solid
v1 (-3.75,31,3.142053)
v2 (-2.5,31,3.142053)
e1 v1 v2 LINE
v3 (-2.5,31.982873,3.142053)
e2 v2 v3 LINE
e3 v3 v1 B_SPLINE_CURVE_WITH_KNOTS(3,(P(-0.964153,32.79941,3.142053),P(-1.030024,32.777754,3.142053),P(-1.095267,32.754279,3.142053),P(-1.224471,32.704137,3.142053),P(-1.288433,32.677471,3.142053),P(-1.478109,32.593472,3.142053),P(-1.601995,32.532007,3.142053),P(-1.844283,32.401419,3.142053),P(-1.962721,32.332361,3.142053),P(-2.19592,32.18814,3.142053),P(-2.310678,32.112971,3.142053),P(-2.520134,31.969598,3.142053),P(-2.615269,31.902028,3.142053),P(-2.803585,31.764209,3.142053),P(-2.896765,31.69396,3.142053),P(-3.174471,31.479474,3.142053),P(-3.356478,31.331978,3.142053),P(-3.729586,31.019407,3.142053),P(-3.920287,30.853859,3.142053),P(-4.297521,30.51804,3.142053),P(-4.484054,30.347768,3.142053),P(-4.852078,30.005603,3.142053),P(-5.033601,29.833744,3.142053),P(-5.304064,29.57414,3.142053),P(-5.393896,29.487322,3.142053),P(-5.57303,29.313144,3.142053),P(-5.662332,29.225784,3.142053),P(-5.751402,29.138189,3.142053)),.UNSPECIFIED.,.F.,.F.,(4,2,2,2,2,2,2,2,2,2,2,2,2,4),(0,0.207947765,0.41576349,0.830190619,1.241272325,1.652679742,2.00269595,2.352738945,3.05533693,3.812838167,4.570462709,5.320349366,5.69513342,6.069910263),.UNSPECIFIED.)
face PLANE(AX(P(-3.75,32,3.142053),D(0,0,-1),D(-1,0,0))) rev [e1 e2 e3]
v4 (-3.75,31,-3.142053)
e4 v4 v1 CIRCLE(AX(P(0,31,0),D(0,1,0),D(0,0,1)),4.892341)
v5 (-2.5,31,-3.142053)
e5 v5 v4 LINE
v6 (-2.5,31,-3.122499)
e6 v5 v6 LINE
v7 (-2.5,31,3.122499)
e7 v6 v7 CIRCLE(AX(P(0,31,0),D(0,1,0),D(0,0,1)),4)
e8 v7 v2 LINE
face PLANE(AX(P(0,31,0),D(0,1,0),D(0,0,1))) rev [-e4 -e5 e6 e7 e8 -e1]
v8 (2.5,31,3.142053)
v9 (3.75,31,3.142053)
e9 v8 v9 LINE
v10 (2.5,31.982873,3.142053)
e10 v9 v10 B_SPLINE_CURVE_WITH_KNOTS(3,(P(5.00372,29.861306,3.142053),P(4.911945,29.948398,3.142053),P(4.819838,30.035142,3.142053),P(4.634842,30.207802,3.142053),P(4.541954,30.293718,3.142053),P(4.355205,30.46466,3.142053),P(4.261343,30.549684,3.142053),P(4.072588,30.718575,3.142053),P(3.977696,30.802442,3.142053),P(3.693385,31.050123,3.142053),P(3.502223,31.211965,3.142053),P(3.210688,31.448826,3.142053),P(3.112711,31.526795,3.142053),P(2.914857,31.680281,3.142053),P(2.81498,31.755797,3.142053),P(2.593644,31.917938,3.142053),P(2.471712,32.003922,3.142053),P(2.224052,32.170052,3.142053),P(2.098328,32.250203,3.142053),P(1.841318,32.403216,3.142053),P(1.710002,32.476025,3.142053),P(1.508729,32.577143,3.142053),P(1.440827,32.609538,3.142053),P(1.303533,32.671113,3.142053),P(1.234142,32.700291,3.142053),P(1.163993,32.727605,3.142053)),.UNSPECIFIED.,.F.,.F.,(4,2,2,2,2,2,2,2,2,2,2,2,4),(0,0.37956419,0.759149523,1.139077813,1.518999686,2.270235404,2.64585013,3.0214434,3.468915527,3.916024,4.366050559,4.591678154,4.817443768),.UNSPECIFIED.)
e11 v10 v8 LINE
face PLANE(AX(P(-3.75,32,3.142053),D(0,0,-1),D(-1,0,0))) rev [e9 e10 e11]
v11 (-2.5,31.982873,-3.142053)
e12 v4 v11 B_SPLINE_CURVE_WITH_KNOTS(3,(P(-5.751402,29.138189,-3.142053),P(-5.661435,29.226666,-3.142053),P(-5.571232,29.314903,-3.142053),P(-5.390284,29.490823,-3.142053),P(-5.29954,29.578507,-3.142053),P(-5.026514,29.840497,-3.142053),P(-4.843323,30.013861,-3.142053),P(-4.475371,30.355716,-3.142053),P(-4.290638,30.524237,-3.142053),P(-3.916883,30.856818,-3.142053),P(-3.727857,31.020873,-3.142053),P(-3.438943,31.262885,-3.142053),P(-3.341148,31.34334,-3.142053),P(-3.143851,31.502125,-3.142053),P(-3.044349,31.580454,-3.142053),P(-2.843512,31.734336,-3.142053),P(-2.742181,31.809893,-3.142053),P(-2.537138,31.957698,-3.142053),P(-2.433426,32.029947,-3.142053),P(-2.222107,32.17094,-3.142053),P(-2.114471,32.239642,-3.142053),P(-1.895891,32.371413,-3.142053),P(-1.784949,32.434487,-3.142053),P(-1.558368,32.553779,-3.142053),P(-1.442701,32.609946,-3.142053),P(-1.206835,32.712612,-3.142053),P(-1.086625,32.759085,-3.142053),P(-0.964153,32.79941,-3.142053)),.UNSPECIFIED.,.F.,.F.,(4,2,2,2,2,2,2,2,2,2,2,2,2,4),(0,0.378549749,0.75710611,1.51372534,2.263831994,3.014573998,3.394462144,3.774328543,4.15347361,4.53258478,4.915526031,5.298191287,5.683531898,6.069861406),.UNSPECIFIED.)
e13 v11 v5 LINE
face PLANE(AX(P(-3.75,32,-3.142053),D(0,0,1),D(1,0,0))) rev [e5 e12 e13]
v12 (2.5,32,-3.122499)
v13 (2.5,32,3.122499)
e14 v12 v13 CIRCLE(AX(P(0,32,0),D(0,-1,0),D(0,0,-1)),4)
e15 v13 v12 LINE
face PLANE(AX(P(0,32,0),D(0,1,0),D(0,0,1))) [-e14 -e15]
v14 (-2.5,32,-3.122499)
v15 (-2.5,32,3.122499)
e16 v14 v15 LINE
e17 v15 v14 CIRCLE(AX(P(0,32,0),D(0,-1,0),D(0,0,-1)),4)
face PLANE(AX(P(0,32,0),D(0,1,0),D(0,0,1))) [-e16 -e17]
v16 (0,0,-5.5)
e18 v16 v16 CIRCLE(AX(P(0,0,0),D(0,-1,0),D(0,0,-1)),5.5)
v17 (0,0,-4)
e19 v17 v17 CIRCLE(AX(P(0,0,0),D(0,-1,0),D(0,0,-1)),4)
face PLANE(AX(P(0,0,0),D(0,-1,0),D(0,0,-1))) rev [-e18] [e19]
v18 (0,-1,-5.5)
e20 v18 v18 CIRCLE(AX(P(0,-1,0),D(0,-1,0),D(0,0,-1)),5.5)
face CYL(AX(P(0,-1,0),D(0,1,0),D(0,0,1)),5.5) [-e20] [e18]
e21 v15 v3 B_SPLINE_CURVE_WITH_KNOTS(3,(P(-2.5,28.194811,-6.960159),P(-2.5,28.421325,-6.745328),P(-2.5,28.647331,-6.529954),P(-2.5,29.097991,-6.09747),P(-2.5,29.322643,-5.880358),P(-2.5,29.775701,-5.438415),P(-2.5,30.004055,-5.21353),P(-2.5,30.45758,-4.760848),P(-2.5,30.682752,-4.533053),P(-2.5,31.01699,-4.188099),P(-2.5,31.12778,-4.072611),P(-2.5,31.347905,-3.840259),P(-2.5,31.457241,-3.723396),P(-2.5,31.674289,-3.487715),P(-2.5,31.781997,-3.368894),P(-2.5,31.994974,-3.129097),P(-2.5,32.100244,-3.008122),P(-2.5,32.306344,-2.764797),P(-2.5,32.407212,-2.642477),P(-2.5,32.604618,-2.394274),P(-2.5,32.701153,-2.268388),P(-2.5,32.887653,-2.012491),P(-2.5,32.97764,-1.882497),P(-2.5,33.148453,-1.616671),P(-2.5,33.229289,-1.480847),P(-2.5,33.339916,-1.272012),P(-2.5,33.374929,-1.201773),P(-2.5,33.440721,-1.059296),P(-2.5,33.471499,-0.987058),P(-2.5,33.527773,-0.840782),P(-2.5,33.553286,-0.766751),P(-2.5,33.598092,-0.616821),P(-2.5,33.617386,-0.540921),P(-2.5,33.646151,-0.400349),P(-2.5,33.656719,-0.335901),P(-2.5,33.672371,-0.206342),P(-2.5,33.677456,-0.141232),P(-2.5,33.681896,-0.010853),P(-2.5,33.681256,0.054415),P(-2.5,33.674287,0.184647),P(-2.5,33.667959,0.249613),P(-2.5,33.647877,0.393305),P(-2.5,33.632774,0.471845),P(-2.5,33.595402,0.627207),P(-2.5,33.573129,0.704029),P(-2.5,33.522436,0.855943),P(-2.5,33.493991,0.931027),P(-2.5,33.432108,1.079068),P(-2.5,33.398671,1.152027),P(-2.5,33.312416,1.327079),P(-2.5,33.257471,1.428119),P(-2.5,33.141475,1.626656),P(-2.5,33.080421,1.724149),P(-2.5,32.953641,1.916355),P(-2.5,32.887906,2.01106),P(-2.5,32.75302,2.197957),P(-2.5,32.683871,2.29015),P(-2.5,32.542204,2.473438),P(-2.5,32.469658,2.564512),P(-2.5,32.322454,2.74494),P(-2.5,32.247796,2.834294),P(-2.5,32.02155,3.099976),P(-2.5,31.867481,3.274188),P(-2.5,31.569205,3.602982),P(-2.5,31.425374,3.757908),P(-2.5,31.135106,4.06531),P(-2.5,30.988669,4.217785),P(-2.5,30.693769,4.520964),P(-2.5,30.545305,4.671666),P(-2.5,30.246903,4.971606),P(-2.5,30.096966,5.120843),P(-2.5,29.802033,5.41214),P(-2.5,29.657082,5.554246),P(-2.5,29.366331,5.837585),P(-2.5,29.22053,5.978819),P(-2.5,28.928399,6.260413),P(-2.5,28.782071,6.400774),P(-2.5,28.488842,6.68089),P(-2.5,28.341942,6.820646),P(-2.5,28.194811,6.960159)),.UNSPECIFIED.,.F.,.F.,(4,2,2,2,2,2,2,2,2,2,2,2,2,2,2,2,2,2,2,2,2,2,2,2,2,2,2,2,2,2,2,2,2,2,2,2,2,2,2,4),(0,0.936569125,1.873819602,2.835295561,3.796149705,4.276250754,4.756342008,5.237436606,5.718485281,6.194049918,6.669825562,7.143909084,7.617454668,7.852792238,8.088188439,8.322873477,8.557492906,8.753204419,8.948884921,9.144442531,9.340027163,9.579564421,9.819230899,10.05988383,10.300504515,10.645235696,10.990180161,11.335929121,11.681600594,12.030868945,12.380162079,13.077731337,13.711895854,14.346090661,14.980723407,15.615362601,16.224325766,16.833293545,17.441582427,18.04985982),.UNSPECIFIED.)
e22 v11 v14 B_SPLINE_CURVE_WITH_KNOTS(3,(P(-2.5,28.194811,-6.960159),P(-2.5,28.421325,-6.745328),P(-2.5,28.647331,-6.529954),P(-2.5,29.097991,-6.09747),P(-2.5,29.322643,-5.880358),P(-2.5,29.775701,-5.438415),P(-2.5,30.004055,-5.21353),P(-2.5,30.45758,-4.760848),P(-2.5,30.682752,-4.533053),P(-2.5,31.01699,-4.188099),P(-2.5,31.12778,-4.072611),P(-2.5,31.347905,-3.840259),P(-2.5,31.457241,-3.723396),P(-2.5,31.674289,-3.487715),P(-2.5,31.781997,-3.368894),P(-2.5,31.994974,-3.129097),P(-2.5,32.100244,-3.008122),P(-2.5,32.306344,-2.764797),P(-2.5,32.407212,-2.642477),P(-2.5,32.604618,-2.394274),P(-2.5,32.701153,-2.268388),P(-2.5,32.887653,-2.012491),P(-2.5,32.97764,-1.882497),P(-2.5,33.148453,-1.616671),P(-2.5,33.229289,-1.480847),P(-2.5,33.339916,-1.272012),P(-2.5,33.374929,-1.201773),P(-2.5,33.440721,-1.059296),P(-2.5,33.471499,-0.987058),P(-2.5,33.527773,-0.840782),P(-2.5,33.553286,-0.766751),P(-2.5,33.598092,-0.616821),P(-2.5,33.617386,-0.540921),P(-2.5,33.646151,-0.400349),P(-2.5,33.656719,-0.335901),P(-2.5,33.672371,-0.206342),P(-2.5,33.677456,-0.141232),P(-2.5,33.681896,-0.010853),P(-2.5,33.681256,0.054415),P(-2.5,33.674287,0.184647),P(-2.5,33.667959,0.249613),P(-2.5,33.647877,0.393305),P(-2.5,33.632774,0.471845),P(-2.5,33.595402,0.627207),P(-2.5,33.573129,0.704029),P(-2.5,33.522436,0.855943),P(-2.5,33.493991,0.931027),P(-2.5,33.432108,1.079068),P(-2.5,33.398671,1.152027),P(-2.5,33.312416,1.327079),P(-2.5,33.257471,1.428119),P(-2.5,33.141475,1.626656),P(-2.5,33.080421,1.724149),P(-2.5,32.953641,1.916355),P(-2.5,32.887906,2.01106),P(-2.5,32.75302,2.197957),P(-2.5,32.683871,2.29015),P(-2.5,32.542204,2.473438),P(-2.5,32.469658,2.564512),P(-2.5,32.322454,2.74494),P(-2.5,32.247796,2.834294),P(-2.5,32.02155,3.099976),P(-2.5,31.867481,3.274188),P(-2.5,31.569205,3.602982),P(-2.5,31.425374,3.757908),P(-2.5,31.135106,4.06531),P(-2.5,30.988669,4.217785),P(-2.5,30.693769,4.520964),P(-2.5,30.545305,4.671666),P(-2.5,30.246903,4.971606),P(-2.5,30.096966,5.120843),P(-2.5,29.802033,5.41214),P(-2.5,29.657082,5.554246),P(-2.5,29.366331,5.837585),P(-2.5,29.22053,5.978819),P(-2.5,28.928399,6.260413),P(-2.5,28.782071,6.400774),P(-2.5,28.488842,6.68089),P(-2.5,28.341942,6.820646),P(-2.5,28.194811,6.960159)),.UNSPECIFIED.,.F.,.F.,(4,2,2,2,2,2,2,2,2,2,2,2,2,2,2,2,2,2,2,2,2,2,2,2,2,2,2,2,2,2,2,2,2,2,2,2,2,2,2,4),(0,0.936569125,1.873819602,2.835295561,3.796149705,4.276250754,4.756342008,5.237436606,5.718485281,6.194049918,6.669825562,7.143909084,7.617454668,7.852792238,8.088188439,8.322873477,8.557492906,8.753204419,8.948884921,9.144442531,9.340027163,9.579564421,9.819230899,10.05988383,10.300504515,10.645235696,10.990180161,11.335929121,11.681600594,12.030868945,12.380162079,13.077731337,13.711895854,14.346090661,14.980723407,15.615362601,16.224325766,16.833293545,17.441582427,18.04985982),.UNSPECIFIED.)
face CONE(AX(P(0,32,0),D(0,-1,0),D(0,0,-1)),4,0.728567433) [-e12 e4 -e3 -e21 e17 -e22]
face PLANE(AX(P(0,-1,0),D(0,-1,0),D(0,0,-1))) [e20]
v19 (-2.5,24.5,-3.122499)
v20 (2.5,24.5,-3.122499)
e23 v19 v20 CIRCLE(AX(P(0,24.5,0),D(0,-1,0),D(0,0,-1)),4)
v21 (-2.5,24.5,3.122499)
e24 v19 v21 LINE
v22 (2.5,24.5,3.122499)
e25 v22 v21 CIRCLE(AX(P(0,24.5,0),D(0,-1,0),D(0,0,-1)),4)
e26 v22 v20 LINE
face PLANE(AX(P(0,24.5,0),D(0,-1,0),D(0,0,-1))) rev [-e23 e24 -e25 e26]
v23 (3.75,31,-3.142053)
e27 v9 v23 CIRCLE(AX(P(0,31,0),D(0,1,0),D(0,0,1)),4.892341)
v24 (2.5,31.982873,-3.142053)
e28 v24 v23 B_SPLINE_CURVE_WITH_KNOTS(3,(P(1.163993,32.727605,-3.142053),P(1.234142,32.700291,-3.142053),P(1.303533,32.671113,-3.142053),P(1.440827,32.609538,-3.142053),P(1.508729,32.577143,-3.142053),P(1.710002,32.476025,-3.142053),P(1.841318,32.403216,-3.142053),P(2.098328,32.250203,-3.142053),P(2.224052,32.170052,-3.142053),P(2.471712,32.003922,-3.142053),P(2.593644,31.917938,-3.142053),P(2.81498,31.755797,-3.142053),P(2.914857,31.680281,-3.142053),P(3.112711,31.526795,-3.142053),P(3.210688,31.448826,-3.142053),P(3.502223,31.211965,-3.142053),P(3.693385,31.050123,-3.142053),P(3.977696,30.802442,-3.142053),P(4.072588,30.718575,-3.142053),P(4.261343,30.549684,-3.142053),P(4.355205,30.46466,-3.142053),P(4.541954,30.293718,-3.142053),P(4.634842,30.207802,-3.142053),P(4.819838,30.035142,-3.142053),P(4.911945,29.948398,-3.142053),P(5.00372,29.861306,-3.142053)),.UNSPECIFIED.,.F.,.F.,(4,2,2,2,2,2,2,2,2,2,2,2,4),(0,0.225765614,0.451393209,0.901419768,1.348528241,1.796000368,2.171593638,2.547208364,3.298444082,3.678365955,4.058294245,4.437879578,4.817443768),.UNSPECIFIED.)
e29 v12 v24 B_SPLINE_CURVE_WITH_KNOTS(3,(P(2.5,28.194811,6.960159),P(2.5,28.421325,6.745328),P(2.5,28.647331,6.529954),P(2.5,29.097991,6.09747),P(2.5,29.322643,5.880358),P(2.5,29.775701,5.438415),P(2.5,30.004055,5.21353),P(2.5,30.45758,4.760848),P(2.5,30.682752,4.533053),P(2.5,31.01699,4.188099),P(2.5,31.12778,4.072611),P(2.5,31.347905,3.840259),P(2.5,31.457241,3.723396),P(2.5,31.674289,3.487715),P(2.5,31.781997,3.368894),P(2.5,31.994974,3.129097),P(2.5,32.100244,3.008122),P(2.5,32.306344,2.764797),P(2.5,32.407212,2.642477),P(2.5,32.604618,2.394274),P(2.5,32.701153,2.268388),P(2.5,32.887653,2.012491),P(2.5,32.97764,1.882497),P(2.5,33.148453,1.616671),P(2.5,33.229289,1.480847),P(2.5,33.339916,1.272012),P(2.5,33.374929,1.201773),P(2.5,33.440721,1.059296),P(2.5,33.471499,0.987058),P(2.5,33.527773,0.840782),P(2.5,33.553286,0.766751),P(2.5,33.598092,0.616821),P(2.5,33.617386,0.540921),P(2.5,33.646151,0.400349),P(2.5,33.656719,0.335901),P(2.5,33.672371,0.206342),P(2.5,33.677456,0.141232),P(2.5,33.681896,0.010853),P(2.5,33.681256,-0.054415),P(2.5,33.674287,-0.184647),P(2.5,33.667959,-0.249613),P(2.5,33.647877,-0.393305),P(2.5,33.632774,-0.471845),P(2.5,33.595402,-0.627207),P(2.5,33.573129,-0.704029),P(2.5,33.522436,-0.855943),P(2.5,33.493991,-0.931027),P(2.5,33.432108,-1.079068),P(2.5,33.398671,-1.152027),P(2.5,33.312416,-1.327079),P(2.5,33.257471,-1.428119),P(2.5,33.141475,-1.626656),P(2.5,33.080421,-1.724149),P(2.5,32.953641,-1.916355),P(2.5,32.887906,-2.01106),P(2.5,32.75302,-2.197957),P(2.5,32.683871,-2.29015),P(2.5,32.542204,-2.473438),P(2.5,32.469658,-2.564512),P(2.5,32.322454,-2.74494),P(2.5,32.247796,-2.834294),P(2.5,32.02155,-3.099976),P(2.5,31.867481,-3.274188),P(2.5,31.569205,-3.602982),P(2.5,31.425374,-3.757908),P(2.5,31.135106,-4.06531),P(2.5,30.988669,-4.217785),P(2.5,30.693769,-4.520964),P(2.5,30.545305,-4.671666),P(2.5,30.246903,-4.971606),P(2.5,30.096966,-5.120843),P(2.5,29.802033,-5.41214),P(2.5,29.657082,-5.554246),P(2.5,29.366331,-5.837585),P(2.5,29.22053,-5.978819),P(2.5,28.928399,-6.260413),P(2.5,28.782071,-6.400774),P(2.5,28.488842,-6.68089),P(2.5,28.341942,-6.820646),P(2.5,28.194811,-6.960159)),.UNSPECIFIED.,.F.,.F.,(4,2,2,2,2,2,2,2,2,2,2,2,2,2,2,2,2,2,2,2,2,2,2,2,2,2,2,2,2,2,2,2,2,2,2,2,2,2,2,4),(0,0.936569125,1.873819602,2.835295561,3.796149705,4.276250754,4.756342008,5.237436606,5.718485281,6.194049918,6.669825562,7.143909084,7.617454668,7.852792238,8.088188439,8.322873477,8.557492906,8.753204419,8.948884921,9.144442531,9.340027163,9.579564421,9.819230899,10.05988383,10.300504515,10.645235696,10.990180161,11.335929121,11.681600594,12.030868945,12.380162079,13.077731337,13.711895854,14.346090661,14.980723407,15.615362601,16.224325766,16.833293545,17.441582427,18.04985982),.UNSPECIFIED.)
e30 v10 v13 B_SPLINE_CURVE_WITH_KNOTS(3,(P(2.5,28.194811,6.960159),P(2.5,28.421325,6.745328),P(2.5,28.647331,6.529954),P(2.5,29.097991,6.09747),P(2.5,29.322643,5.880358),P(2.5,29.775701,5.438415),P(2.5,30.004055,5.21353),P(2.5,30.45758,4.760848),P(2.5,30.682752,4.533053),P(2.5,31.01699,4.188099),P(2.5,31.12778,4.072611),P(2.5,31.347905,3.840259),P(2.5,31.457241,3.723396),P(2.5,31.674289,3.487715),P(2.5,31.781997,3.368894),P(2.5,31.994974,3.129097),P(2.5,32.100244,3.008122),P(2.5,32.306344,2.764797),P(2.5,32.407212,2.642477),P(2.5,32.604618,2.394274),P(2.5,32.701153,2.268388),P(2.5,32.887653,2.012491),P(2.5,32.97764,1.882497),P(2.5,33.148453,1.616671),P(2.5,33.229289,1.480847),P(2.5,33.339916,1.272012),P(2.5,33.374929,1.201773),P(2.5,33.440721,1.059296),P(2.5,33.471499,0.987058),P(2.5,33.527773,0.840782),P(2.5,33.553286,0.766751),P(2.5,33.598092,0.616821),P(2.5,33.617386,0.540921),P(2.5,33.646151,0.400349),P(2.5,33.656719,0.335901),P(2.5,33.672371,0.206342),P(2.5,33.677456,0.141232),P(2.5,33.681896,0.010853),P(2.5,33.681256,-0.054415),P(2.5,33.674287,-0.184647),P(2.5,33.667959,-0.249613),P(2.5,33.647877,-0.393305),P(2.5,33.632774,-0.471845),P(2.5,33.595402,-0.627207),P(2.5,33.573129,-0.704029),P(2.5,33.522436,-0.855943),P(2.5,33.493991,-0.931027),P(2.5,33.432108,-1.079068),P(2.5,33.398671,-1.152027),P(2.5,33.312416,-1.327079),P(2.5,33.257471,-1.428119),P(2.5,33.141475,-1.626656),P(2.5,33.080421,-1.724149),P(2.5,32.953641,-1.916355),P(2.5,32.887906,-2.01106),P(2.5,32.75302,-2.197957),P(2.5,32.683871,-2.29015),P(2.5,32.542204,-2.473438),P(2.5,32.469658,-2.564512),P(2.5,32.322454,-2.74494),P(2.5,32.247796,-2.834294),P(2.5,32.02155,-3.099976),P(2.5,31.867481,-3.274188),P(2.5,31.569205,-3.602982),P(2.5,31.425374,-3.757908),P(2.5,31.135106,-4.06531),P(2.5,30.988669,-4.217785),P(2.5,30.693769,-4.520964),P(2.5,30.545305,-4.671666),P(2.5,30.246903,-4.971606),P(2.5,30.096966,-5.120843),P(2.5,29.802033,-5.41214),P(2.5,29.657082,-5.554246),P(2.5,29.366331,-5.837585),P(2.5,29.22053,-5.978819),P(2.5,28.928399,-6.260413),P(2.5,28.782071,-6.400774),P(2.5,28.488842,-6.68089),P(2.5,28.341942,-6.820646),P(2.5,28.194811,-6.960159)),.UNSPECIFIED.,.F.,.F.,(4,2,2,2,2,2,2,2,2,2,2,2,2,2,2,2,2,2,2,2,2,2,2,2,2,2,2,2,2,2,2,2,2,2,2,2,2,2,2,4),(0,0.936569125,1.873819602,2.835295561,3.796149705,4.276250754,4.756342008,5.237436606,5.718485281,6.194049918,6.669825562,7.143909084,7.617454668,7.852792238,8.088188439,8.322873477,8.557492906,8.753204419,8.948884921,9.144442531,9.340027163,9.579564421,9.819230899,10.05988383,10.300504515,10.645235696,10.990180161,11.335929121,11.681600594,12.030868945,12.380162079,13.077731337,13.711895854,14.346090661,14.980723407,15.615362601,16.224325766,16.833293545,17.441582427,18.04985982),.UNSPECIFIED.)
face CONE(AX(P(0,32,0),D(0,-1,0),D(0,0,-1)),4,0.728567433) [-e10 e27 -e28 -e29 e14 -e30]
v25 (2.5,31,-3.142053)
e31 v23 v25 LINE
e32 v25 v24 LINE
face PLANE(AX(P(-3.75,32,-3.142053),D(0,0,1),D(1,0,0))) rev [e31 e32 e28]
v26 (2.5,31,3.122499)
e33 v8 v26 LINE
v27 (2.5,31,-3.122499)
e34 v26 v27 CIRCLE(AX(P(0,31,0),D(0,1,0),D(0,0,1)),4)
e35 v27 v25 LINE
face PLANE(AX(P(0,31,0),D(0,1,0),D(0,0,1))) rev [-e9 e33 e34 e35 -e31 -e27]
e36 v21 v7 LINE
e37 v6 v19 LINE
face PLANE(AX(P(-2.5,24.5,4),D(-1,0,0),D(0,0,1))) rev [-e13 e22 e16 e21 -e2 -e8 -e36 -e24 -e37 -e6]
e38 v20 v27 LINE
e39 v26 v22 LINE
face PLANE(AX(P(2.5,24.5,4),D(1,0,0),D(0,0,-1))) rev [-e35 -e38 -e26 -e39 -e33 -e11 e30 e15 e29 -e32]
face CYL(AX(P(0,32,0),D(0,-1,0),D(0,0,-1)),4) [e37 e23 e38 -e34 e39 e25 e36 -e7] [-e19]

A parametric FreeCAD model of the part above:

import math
import FreeCAD as App
import Part
import Sketcher

V = App.Vector


def add_polygon(sketch, points):
    """Adds a closed chain of lines whose ends are joined by coincident constraints."""
    first, n = sketch.GeometryCount, len(points)
    for a, b in zip(points, points[1:] + points[:1]):
        sketch.addGeometry(Part.LineSegment(App.Vector(*a, 0), App.Vector(*b, 0)), False)
    for i in range(n):
        sketch.addConstraint(Sketcher.Constraint("Coincident", first + i, 2, first + (i + 1) % n, 1))

doc = App.newDocument("Part")
body = doc.addObject("PartDesign::Body", "Body")

# Sketch on XZ plane
sketch1 = doc.addObject("Sketcher::SketchObject", "Sketch")
body.addObject(sketch1)
sketch1.AttachmentSupport = (doc.XZ_Plane, [""])
sketch1.MapMode = "FlatFace"
sketch1.addGeometry(Part.Circle(V(0, 0, 0), V(0, 0, 1), 4), False)
sketch1.addConstraint(Sketcher.Constraint("Coincident", 0, 3, -1, 1))
sketch1.addConstraint(Sketcher.Constraint("Diameter", 0, 8.0))
pad1 = doc.addObject("PartDesign::Pad", "Pad")
body.addObject(pad1)
pad1.Profile = sketch1
pad1.Length = 32
pad1.Reversed = True

# Sketch on XZ plane
sketch2 = doc.addObject("Sketcher::SketchObject", "Sketch001")
body.addObject(sketch2)
sketch2.AttachmentSupport = (doc.XZ_Plane, [""])
sketch2.MapMode = "FlatFace"
sketch2.addGeometry(Part.Circle(V(0, 0, 0), V(0, 0, 1), 5.5), False)
sketch2.addConstraint(Sketcher.Constraint("Coincident", 0, 3, -1, 1))
sketch2.addConstraint(Sketcher.Constraint("Diameter", 0, 11.0))
pad2 = doc.addObject("PartDesign::Pad", "Pad001")
body.addObject(pad2)
pad2.Profile = sketch2
pad2.Length = 1

# Sketch on XZ plane
sketch3 = doc.addObject("Sketcher::SketchObject", "Sketch002")
body.addObject(sketch3)
sketch3.AttachmentSupport = (doc.XZ_Plane, [""])
sketch3.MapMode = "FlatFace"
sketch3.AttachmentOffset = App.Placement(V(0, 0, -31), App.Rotation())
sketch3.addGeometry(Part.LineSegment(V(-3.75, 3.142053, 0), V(3.75, 3.142053, 0)), False)
sketch3.addGeometry(Part.ArcOfCircle(Part.Circle(V(0, 0, 0), V(0, 0, 1), 4.892341), math.radians(-39.958999), math.radians(39.958999)), False)
sketch3.addGeometry(Part.LineSegment(V(3.75, -3.142053, 0), V(-3.75, -3.142053, 0)), False)
sketch3.addGeometry(Part.ArcOfCircle(Part.Circle(V(0, 0, 0), V(0, 0, 1), 4.892341), math.radians(140.041001), math.radians(219.958999)), False)
sketch3.addConstraint(Sketcher.Constraint("Coincident", 0, 2, 1, 2))
sketch3.addConstraint(Sketcher.Constraint("Coincident", 1, 1, 2, 1))
sketch3.addConstraint(Sketcher.Constraint("Coincident", 2, 2, 3, 2))
sketch3.addConstraint(Sketcher.Constraint("Coincident", 3, 1, 0, 1))
sketch3.addConstraint(Sketcher.Constraint("Horizontal", 0))
sketch3.addConstraint(Sketcher.Constraint("Horizontal", 2))
sketch3.addConstraint(Sketcher.Constraint("Coincident", 1, 3, -1, 1))
sketch3.addConstraint(Sketcher.Constraint("Coincident", 3, 3, -1, 1))
sketch3.addConstraint(Sketcher.Constraint("Equal", 1, 3))
sketch3.addConstraint(Sketcher.Constraint("Vertical", 0, 2, 1, 1))
sketch3.addConstraint(Sketcher.Constraint("DistanceX", 0, 1, 0, 2, 7.5))
sketch3.addConstraint(Sketcher.Constraint("Radius", 1, 4.892341))
pad3 = doc.addObject("PartDesign::Pad", "Pad002")
body.addObject(pad3)
pad3.Profile = sketch3
pad3.Length = 1
pad3.Reversed = True

# Sketch on XZ plane
sketch4 = doc.addObject("Sketcher::SketchObject", "Sketch003")
body.addObject(sketch4)
sketch4.AttachmentSupport = (doc.XZ_Plane, [""])
sketch4.MapMode = "FlatFace"
sketch4.AttachmentOffset = App.Placement(V(0, 0, -32), App.Rotation())
add_polygon(sketch4, [(-2.5, -4), (-2.5, 4), (2.5, 4), (2.5, -4)])  # lines 0-3
sketch4.addConstraint(Sketcher.Constraint("Vertical", 0))
sketch4.addConstraint(Sketcher.Constraint("Horizontal", 1))
sketch4.addConstraint(Sketcher.Constraint("Vertical", 2))
sketch4.addConstraint(Sketcher.Constraint("Horizontal", 3))
sketch4.addConstraint(Sketcher.Constraint("Symmetric", 0, 2, 2, 2, -1, 1))
sketch4.addConstraint(Sketcher.Constraint("DistanceX", 1, 1, 1, 2, 5.0))
sketch4.addConstraint(Sketcher.Constraint("DistanceY", 0, 1, 0, 2, 8.0))
pocket1 = doc.addObject("PartDesign::Pocket", "Pocket")
body.addObject(pocket1)
pocket1.Profile = sketch4
pocket1.Length = 7.5
pocket1.Reversed = True

# Sketch on XY plane
sketch5 = doc.addObject("Sketcher::SketchObject", "Sketch004")
body.addObject(sketch5)
sketch5.AttachmentSupport = (doc.XY_Plane, [""])
sketch5.MapMode = "FlatFace"
add_polygon(sketch5, [(4, 32), (4.892341, 31), (4.892341, 32)])  # lines 0-2
sketch5.addConstraint(Sketcher.Constraint("Vertical", 1))
sketch5.addConstraint(Sketcher.Constraint("Horizontal", 2))
sketch5.addConstraint(Sketcher.Constraint("DistanceY", 1, 1, 1, 2, 1.0))
sketch5.addConstraint(Sketcher.Constraint("DistanceY", -1, 1, 0, 2, 31.0))
sketch5.addConstraint(Sketcher.Constraint("DistanceX", -1, 1, 2, 2, 4.0))
sketch5.addConstraint(Sketcher.Constraint("DistanceX", 2, 2, 2, 1, 0.892341))
groove = doc.addObject("PartDesign::Groove", "Groove")
body.addObject(groove)
groove.Profile = sketch5
groove.ReferenceAxis = (sketch5, ["V_Axis"])
groove.Angle = 360

doc.recompute()
